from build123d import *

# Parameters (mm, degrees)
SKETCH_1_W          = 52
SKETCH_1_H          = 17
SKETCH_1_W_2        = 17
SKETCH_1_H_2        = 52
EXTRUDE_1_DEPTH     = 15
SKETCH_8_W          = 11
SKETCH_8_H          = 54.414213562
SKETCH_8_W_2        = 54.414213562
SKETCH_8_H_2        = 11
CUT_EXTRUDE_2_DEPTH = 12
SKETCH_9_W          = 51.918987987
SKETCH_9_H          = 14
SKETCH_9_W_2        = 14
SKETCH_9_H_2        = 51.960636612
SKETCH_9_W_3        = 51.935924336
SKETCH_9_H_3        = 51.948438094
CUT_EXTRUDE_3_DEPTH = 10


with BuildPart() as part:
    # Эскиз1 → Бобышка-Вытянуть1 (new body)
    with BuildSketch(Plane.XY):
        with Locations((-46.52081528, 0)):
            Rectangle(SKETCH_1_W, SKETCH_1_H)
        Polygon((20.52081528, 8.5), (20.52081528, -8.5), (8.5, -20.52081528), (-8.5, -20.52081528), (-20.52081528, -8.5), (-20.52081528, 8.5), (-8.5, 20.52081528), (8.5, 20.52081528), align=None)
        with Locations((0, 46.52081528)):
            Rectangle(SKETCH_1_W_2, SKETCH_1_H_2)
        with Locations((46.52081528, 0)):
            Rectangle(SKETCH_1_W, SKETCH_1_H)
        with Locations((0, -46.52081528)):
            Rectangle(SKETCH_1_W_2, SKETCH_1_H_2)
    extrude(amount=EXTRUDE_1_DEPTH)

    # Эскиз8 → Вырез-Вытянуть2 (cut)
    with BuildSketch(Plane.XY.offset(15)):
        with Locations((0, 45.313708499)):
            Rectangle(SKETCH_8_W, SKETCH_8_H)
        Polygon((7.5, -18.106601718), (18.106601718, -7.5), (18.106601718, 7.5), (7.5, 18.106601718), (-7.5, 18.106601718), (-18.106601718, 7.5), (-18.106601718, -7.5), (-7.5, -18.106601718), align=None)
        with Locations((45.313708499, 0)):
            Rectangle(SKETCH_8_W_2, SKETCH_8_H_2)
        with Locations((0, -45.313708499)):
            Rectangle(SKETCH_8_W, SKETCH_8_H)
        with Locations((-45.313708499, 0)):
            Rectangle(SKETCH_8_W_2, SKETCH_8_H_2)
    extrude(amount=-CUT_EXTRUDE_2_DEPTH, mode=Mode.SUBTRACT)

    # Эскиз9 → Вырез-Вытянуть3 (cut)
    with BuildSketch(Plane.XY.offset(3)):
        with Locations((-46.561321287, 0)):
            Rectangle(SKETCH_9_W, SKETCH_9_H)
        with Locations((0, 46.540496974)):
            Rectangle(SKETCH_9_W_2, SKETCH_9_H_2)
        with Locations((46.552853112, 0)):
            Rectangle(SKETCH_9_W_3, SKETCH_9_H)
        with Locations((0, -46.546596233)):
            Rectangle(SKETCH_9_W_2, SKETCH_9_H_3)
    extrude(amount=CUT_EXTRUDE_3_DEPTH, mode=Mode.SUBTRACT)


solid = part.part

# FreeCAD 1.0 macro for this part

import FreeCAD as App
import Part
import Sketcher
Q = App.Units.Quantity

doc = App.newDocument("Part")
params = doc.addObject("Spreadsheet::Sheet", "Params")
for row, (alias, value) in enumerate([
    ("sketch1_width", "52 mm"),
    ("sketch1_width2", "17 mm"),
    ("sketch1_length", "17 mm"),
    ("pad1_length", "15 mm"),
    ("sketch2_width", "2 mm"),
    ("sketch2_width2", "11 mm"),
    ("sketch2_length", "15 mm"),
    ("pocket1_length", "12 mm"),
    ("sketch3_width", "14 mm"),
    ("pocket2_length", "10 mm"),
], start=1):
    params.set(f"A{row}", alias)
    params.set(f"B{row}", "=" + value)
    params.setAlias(f"B{row}", alias)

body = doc.addObject("PartDesign::Body", "Body")

sketch1 = doc.addObject("Sketcher::SketchObject", "Sketch")
body.addObject(sketch1)
sketch1.AttachmentSupport = (doc.XY_Plane, [""])
sketch1.MapMode = "FlatFace"
sketch1.addGeometry([
    Part.LineSegment(App.Vector(-73, 8, 0), App.Vector(-73, -8, 0)),
    Part.LineSegment(App.Vector(-73, -8, 0), App.Vector(-21, -8, 0)),
    Part.LineSegment(App.Vector(-21, -8, 0), App.Vector(-8, -21, 0)),
    Part.LineSegment(App.Vector(-8, -21, 0), App.Vector(-8, -73, 0)),
    Part.LineSegment(App.Vector(-8, -73, 0), App.Vector(8, -73, 0)),
    Part.LineSegment(App.Vector(8, -73, 0), App.Vector(8, -21, 0)),
    Part.LineSegment(App.Vector(8, -21, 0), App.Vector(21, -8, 0)),
    Part.LineSegment(App.Vector(21, -8, 0), App.Vector(73, -8, 0)),
    Part.LineSegment(App.Vector(73, -8, 0), App.Vector(73, 8, 0)),
    Part.LineSegment(App.Vector(73, 8, 0), App.Vector(21, 8, 0)),
    Part.LineSegment(App.Vector(21, 8, 0), App.Vector(8, 21, 0)),
    Part.LineSegment(App.Vector(8, 21, 0), App.Vector(8, 73, 0)),
    Part.LineSegment(App.Vector(8, 73, 0), App.Vector(-8, 73, 0)),
    Part.LineSegment(App.Vector(-8, 73, 0), App.Vector(-8, 21, 0)),
    Part.LineSegment(App.Vector(-8, 21, 0), App.Vector(-21, 8, 0)),
    Part.LineSegment(App.Vector(-21, 8, 0), App.Vector(-73, 8, 0)),
], False)
sketch1.addConstraint([
    Sketcher.Constraint("Coincident", 0, 2, 1, 1),
    Sketcher.Constraint("Coincident", 1, 2, 2, 1),
    Sketcher.Constraint("Coincident", 2, 2, 3, 1),
    Sketcher.Constraint("Coincident", 3, 2, 4, 1),
    Sketcher.Constraint("Coincident", 4, 2, 5, 1),
    Sketcher.Constraint("Coincident", 5, 2, 6, 1),
    Sketcher.Constraint("Coincident", 6, 2, 7, 1),
    Sketcher.Constraint("Coincident", 7, 2, 8, 1),
    Sketcher.Constraint("Coincident", 8, 2, 9, 1),
    Sketcher.Constraint("Coincident", 9, 2, 10, 1),
    Sketcher.Constraint("Coincident", 10, 2, 11, 1),
    Sketcher.Constraint("Coincident", 11, 2, 12, 1),
    Sketcher.Constraint("Coincident", 12, 2, 13, 1),
    Sketcher.Constraint("Coincident", 13, 2, 14, 1),
    Sketcher.Constraint("Coincident", 14, 2, 15, 1),
    Sketcher.Constraint("Coincident", 15, 2, 0, 1),
    Sketcher.Constraint("Vertical", 0),
    Sketcher.Constraint("Horizontal", 1),
    Sketcher.Constraint("Vertical", 3),
    Sketcher.Constraint("Horizontal", 4),
    Sketcher.Constraint("Vertical", 5),
    Sketcher.Constraint("Horizontal", 7),
    Sketcher.Constraint("Vertical", 8),
    Sketcher.Constraint("Horizontal", 9),
    Sketcher.Constraint("Vertical", 11),
    Sketcher.Constraint("Horizontal", 12),
    Sketcher.Constraint("Vertical", 13),
    Sketcher.Constraint("Horizontal", 15),
    Sketcher.Constraint("Symmetric", 0, 2, 8, 2, -1, 1),
    Sketcher.Constraint("Symmetric", 2, 2, 10, 2, -1, 1),
    Sketcher.Constraint("Symmetric", 4, 2, 12, 2, -1, 1),
    Sketcher.Constraint("Symmetric", 6, 2, 14, 2, -1, 1),
    Sketcher.Constraint("Symmetric", 2, 2, 5, 2, -2),
    Sketcher.Constraint("Symmetric", 1, 2, 6, 2, -2),
    Sketcher.Constraint("Perpendicular", 2, 6),
    Sketcher.Constraint("Perpendicular", 6, 10),
    Sketcher.Constraint("Perpendicular", 10, 14),
    Sketcher.Constraint("Equal", 12, 0),
    Sketcher.Constraint("Equal", 15, 3),
    Sketcher.Constraint("DistanceX", 1, 1, 1, 2, Q("52 mm")),
    Sketcher.Constraint("DistanceX", 4, 1, 4, 2, Q("17 mm")),
    Sketcher.Constraint("Distance", 2, Q("17 mm")),
])
sketch1.setExpression("Constraints[39]", "Params.sketch1_width")
sketch1.setExpression("Constraints[40]", "Params.sketch1_width2")
sketch1.setExpression("Constraints[41]", "Params.sketch1_length")
pad1 = doc.addObject("PartDesign::Pad", "Pad")
body.addObject(pad1)
pad1.Profile = sketch1
pad1.setExpression("Length", "Params.pad1_length")

sketch2 = doc.addObject("Sketcher::SketchObject", "Sketch001")
body.addObject(sketch2)
sketch2.AttachmentSupport = (doc.XY_Plane, [""])
sketch2.MapMode = "FlatFace"
sketch2.AttachmentOffset = App.Placement(App.Vector(0, 0, 15), App.Rotation())
sketch2.addGeometry([
    Part.LineSegment(App.Vector(-5.5, 72.5, 0), App.Vector(-5.5, 18.1, 0)),
    Part.LineSegment(App.Vector(-5.5, 18.1, 0), App.Vector(-7.5, 18.1, 0)),
    Part.LineSegment(App.Vector(-7.5, 18.1, 0), App.Vector(-18.1, 7.5, 0)),
    Part.LineSegment(App.Vector(-18.1, 7.5, 0), App.Vector(-18.1, 5.5, 0)),
    Part.LineSegment(App.Vector(-18.1, 5.5, 0), App.Vector(-72.5, 5.5, 0)),
    Part.LineSegment(App.Vector(-72.5, 5.5, 0), App.Vector(-72.5, -5.5, 0)),
    Part.LineSegment(App.Vector(-72.5, -5.5, 0), App.Vector(-18.1, -5.5, 0)),
    Part.LineSegment(App.Vector(-18.1, -5.5, 0), App.Vector(-18.1, -7.5, 0)),
    Part.LineSegment(App.Vector(-18.1, -7.5, 0), App.Vector(-7.5, -18.1, 0)),
    Part.LineSegment(App.Vector(-7.5, -18.1, 0), App.Vector(-5.5, -18.1, 0)),
    Part.LineSegment(App.Vector(-5.5, -18.1, 0), App.Vector(-5.5, -72.5, 0)),
    Part.LineSegment(App.Vector(-5.5, -72.5, 0), App.Vector(5.5, -72.5, 0)),
    Part.LineSegment(App.Vector(5.5, -72.5, 0), App.Vector(5.5, -18.1, 0)),
    Part.LineSegment(App.Vector(5.5, -18.1, 0), App.Vector(7.5, -18.1, 0)),
    Part.LineSegment(App.Vector(7.5, -18.1, 0), App.Vector(18.1, -7.5, 0)),
    Part.LineSegment(App.Vector(18.1, -7.5, 0), App.Vector(18.1, -5.5, 0)),
    Part.LineSegment(App.Vector(18.1, -5.5, 0), App.Vector(72.5, -5.5, 0)),
    Part.LineSegment(App.Vector(72.5, -5.5, 0), App.Vector(72.5, 5.5, 0)),
    Part.LineSegment(App.Vector(72.5, 5.5, 0), App.Vector(18.1, 5.5, 0)),
    Part.LineSegment(App.Vector(18.1, 5.5, 0), App.Vector(18.1, 7.5, 0)),
    Part.LineSegment(App.Vector(18.1, 7.5, 0), App.Vector(7.5, 18.1, 0)),
    Part.LineSegment(App.Vector(7.5, 18.1, 0), App.Vector(5.5, 18.1, 0)),
    Part.LineSegment(App.Vector(5.5, 18.1, 0), App.Vector(5.5, 72.5, 0)),
    Part.LineSegment(App.Vector(5.5, 72.5, 0), App.Vector(-5.5, 72.5, 0)),
], False)
sketch2.addConstraint([
    Sketcher.Constraint("Coincident", 0, 2, 1, 1),
    Sketcher.Constraint("Coincident", 1, 2, 2, 1),
    Sketcher.Constraint("Coincident", 2, 2, 3, 1),
    Sketcher.Constraint("Coincident", 3, 2, 4, 1),
    Sketcher.Constraint("Coincident", 4, 2, 5, 1),
    Sketcher.Constraint("Coincident", 5, 2, 6, 1),
    Sketcher.Constraint("Coincident", 6, 2, 7, 1),
    Sketcher.Constraint("Coincident", 7, 2, 8, 1),
    Sketcher.Constraint("Coincident", 8, 2, 9, 1),
    Sketcher.Constraint("Coincident", 9, 2, 10, 1),
    Sketcher.Constraint("Coincident", 10, 2, 11, 1),
    Sketcher.Constraint("Coincident", 11, 2, 12, 1),
    Sketcher.Constraint("Coincident", 12, 2, 13, 1),
    Sketcher.Constraint("Coincident", 13, 2, 14, 1),
    Sketcher.Constraint("Coincident", 14, 2, 15, 1),
    Sketcher.Constraint("Coincident", 15, 2, 16, 1),
    Sketcher.Constraint("Coincident", 16, 2, 17, 1),
    Sketcher.Constraint("Coincident", 17, 2, 18, 1),
    Sketcher.Constraint("Coincident", 18, 2, 19, 1),
    Sketcher.Constraint("Coincident", 19, 2, 20, 1),
    Sketcher.Constraint("Coincident", 20, 2, 21, 1),
    Sketcher.Constraint("Coincident", 21, 2, 22, 1),
    Sketcher.Constraint("Coincident", 22, 2, 23, 1),
    Sketcher.Constraint("Coincident", 23, 2, 0, 1),
    Sketcher.Constraint("Vertical", 0),
    Sketcher.Constraint("Horizontal", 1),
    Sketcher.Constraint("Vertical", 3),
    Sketcher.Constraint("Horizontal", 4),
    Sketcher.Constraint("Vertical", 5),
    Sketcher.Constraint("Horizontal", 6),
    Sketcher.Constraint("Vertical", 7),
    Sketcher.Constraint("Horizontal", 9),
    Sketcher.Constraint("Vertical", 10),
    Sketcher.Constraint("Horizontal", 11),
    Sketcher.Constraint("Vertical", 12),
    Sketcher.Constraint("Horizontal", 13),
    Sketcher.Constraint("Vertical", 15),
    Sketcher.Constraint("Horizontal", 16),
    Sketcher.Constraint("Vertical", 17),
    Sketcher.Constraint("Horizontal", 18),
    Sketcher.Constraint("Vertical", 19),
    Sketcher.Constraint("Horizontal", 21),
    Sketcher.Constraint("Vertical", 22),
    Sketcher.Constraint("Horizontal", 23),
    Sketcher.Constraint("Symmetric", 0, 2, 12, 2, -1, 1),
    Sketcher.Constraint("Symmetric", 2, 2, 14, 2, -1, 1),
    Sketcher.Constraint("Symmetric", 4, 2, 16, 2, -1, 1),
    Sketcher.Constraint("Symmetric", 6, 2, 18, 2, -1, 1),
    Sketcher.Constraint("Symmetric", 8, 2, 20, 2, -1, 1),
    Sketcher.Constraint("Symmetric", 10, 2, 22, 2, -1, 1),
    Sketcher.Constraint("Symmetric", 9, 2, 12, 2, -2),
    Sketcher.Constraint("Symmetric", 7, 2, 14, 2, -2),
    Sketcher.Constraint("Perpendicular", 2, 8),
    Sketcher.Constraint("Perpendicular", 8, 14),
    Sketcher.Constraint("Perpendicular", 14, 20),
    Sketcher.Constraint("Horizontal", 6, 2, 15, 2),
    Sketcher.Constraint("Vertical", 1, 2, 8, 2),
    Sketcher.Constraint("Equal", 18, 0),
    Sketcher.Constraint("Equal", 21, 3),
    Sketcher.Constraint("Equal", 23, 5),
    Sketcher.Constraint("DistanceX", 1, 2, 1, 1, Q("2 mm")),
    Sketcher.Constraint("DistanceX", 11, 1, 11, 2, Q("11 mm")),
    Sketcher.Constraint("Distance", 2, Q("15 mm")),
    Sketcher.Constraint("DistanceX", 4, 2, 4, 1, Q("54.414214 mm")),
])
sketch2.setExpression("Constraints[60]", "Params.sketch2_width")
sketch2.setExpression("Constraints[61]", "Params.sketch2_width2")
sketch2.setExpression("Constraints[62]", "Params.sketch2_length")
pocket1 = doc.addObject("PartDesign::Pocket", "Pocket")
body.addObject(pocket1)
pocket1.Profile = sketch2
pocket1.setExpression("Length", "Params.pocket1_length")

sketch3 = doc.addObject("Sketcher::SketchObject", "Sketch002")
body.addObject(sketch3)
sketch3.AttachmentSupport = (doc.XY_Plane, [""])
sketch3.MapMode = "FlatFace"
sketch3.AttachmentOffset = App.Placement(App.Vector(0, 0, 3), App.Rotation())
sketch3.addGeometry([
    Part.LineSegment(App.Vector(-73, 7, 0), App.Vector(-73, -7, 0)),
    Part.LineSegment(App.Vector(-73, -7, 0), App.Vector(-21, -7, 0)),
    Part.LineSegment(App.Vector(-21, -7, 0), App.Vector(-21, 7, 0)),
    Part.LineSegment(App.Vector(-21, 7, 0), App.Vector(-73, 7, 0)),
    Part.LineSegment(App.Vector(-7, 73, 0), App.Vector(-7, 21, 0)),
    Part.LineSegment(App.Vector(-7, 21, 0), App.Vector(7, 21, 0)),
    Part.LineSegment(App.Vector(7, 21, 0), App.Vector(7, 73, 0)),
    Part.LineSegment(App.Vector(7, 73, 0), App.Vector(-7, 73, 0)),
    Part.LineSegment(App.Vector(21, 7, 0), App.Vector(21, -7, 0)),
    Part.LineSegment(App.Vector(21, -7, 0), App.Vector(73, -7, 0)),
    Part.LineSegment(App.Vector(73, -7, 0), App.Vector(73, 7, 0)),
    Part.LineSegment(App.Vector(73, 7, 0), App.Vector(21, 7, 0)),
    Part.LineSegment(App.Vector(-7, -21, 0), App.Vector(-7, -73, 0)),
    Part.LineSegment(App.Vector(-7, -73, 0), App.Vector(7, -73, 0)),
    Part.LineSegment(App.Vector(7, -73, 0), App.Vector(7, -21, 0)),
    Part.LineSegment(App.Vector(7, -21, 0), App.Vector(-7, -21, 0)),
], False)
sketch3.addConstraint([
    Sketcher.Constraint("Coincident", 0, 2, 1, 1),
    Sketcher.Constraint("Coincident", 1, 2, 2, 1),
    Sketcher.Constraint("Coincident", 2, 2, 3, 1),
    Sketcher.Constraint("Coincident", 3, 2, 0, 1),
    Sketcher.Constraint("Coincident", 4, 2, 5, 1),
    Sketcher.Constraint("Coincident", 5, 2, 6, 1),
    Sketcher.Constraint("Coincident", 6, 2, 7, 1),
    Sketcher.Constraint("Coincident", 7, 2, 4, 1),
    Sketcher.Constraint("Coincident", 8, 2, 9, 1),
    Sketcher.Constraint("Coincident", 9, 2, 10, 1),
    Sketcher.Constraint("Coincident", 10, 2, 11, 1),
    Sketcher.Constraint("Coincident", 11, 2, 8, 1),
    Sketcher.Constraint("Coincident", 12, 2, 13, 1),
    Sketcher.Constraint("Coincident", 13, 2, 14, 1),
    Sketcher.Constraint("Coincident", 14, 2, 15, 1),
    Sketcher.Constraint("Coincident", 15, 2, 12, 1),
    Sketcher.Constraint("Vertical", 0),
    Sketcher.Constraint("Horizontal", 1),
    Sketcher.Constraint("Vertical", 2),
    Sketcher.Constraint("Horizontal", 3),
    Sketcher.Constraint("Vertical", 4),
    Sketcher.Constraint("Horizontal", 5),
    Sketcher.Constraint("Vertical", 6),
    Sketcher.Constraint("Horizontal", 7),
    Sketcher.Constraint("Vertical", 8),
    Sketcher.Constraint("Horizontal", 9),
    Sketcher.Constraint("Vertical", 10),
    Sketcher.Constraint("Horizontal", 11),
    Sketcher.Constraint("Vertical", 12),
    Sketcher.Constraint("Horizontal", 13),
    Sketcher.Constraint("Vertical", 14),
    Sketcher.Constraint("Horizontal", 15),
    Sketcher.Constraint("Symmetric", 3, 2, 9, 2, -1, 1),
    Sketcher.Constraint("Symmetric", 6, 2, 12, 2, -1, 1),
    Sketcher.Constraint("Horizontal", 1, 2, 8, 2),
    Sketcher.Constraint("Horizontal", 3, 2, 10, 2),
    Sketcher.Constraint("Vertical", 7, 2, 12, 2),
    Sketcher.Constraint("Vertical", 6, 2, 13, 2),
    Sketcher.Constraint("Equal", 15, 0),
    Sketcher.Constraint("DistanceX", 5, 1, 5, 2, Q("14 mm")),
    Sketcher.Constraint("DistanceY", 12, 2, 12, 1, Q("51.948438 mm")),
    Sketcher.Constraint("DistanceX", 1, 1, 1, 2, Q("51.918988 mm")),
    Sketcher.Constraint("DistanceX", 9, 1, 9, 2, Q("51.935924 mm")),
    Sketcher.Constraint("DistanceY", 4, 2, 4, 1, Q("51.960637 mm")),
    Sketcher.Constraint("DistanceY", -1, 1, 4, 2, Q("20.560179 mm")),
    Sketcher.Constraint("DistanceX", -1, 1, 8, 2, Q("20.584891 mm")),
])
sketch3.setExpression("Constraints[39]", "Params.sketch3_width")
pocket2 = doc.addObject("PartDesign::Pocket", "Pocket001")
body.addObject(pocket2)
pocket2.Profile = sketch3
pocket2.setExpression("Length", "Params.pocket2_length")
pocket2.Reversed = True

doc.recompute()
